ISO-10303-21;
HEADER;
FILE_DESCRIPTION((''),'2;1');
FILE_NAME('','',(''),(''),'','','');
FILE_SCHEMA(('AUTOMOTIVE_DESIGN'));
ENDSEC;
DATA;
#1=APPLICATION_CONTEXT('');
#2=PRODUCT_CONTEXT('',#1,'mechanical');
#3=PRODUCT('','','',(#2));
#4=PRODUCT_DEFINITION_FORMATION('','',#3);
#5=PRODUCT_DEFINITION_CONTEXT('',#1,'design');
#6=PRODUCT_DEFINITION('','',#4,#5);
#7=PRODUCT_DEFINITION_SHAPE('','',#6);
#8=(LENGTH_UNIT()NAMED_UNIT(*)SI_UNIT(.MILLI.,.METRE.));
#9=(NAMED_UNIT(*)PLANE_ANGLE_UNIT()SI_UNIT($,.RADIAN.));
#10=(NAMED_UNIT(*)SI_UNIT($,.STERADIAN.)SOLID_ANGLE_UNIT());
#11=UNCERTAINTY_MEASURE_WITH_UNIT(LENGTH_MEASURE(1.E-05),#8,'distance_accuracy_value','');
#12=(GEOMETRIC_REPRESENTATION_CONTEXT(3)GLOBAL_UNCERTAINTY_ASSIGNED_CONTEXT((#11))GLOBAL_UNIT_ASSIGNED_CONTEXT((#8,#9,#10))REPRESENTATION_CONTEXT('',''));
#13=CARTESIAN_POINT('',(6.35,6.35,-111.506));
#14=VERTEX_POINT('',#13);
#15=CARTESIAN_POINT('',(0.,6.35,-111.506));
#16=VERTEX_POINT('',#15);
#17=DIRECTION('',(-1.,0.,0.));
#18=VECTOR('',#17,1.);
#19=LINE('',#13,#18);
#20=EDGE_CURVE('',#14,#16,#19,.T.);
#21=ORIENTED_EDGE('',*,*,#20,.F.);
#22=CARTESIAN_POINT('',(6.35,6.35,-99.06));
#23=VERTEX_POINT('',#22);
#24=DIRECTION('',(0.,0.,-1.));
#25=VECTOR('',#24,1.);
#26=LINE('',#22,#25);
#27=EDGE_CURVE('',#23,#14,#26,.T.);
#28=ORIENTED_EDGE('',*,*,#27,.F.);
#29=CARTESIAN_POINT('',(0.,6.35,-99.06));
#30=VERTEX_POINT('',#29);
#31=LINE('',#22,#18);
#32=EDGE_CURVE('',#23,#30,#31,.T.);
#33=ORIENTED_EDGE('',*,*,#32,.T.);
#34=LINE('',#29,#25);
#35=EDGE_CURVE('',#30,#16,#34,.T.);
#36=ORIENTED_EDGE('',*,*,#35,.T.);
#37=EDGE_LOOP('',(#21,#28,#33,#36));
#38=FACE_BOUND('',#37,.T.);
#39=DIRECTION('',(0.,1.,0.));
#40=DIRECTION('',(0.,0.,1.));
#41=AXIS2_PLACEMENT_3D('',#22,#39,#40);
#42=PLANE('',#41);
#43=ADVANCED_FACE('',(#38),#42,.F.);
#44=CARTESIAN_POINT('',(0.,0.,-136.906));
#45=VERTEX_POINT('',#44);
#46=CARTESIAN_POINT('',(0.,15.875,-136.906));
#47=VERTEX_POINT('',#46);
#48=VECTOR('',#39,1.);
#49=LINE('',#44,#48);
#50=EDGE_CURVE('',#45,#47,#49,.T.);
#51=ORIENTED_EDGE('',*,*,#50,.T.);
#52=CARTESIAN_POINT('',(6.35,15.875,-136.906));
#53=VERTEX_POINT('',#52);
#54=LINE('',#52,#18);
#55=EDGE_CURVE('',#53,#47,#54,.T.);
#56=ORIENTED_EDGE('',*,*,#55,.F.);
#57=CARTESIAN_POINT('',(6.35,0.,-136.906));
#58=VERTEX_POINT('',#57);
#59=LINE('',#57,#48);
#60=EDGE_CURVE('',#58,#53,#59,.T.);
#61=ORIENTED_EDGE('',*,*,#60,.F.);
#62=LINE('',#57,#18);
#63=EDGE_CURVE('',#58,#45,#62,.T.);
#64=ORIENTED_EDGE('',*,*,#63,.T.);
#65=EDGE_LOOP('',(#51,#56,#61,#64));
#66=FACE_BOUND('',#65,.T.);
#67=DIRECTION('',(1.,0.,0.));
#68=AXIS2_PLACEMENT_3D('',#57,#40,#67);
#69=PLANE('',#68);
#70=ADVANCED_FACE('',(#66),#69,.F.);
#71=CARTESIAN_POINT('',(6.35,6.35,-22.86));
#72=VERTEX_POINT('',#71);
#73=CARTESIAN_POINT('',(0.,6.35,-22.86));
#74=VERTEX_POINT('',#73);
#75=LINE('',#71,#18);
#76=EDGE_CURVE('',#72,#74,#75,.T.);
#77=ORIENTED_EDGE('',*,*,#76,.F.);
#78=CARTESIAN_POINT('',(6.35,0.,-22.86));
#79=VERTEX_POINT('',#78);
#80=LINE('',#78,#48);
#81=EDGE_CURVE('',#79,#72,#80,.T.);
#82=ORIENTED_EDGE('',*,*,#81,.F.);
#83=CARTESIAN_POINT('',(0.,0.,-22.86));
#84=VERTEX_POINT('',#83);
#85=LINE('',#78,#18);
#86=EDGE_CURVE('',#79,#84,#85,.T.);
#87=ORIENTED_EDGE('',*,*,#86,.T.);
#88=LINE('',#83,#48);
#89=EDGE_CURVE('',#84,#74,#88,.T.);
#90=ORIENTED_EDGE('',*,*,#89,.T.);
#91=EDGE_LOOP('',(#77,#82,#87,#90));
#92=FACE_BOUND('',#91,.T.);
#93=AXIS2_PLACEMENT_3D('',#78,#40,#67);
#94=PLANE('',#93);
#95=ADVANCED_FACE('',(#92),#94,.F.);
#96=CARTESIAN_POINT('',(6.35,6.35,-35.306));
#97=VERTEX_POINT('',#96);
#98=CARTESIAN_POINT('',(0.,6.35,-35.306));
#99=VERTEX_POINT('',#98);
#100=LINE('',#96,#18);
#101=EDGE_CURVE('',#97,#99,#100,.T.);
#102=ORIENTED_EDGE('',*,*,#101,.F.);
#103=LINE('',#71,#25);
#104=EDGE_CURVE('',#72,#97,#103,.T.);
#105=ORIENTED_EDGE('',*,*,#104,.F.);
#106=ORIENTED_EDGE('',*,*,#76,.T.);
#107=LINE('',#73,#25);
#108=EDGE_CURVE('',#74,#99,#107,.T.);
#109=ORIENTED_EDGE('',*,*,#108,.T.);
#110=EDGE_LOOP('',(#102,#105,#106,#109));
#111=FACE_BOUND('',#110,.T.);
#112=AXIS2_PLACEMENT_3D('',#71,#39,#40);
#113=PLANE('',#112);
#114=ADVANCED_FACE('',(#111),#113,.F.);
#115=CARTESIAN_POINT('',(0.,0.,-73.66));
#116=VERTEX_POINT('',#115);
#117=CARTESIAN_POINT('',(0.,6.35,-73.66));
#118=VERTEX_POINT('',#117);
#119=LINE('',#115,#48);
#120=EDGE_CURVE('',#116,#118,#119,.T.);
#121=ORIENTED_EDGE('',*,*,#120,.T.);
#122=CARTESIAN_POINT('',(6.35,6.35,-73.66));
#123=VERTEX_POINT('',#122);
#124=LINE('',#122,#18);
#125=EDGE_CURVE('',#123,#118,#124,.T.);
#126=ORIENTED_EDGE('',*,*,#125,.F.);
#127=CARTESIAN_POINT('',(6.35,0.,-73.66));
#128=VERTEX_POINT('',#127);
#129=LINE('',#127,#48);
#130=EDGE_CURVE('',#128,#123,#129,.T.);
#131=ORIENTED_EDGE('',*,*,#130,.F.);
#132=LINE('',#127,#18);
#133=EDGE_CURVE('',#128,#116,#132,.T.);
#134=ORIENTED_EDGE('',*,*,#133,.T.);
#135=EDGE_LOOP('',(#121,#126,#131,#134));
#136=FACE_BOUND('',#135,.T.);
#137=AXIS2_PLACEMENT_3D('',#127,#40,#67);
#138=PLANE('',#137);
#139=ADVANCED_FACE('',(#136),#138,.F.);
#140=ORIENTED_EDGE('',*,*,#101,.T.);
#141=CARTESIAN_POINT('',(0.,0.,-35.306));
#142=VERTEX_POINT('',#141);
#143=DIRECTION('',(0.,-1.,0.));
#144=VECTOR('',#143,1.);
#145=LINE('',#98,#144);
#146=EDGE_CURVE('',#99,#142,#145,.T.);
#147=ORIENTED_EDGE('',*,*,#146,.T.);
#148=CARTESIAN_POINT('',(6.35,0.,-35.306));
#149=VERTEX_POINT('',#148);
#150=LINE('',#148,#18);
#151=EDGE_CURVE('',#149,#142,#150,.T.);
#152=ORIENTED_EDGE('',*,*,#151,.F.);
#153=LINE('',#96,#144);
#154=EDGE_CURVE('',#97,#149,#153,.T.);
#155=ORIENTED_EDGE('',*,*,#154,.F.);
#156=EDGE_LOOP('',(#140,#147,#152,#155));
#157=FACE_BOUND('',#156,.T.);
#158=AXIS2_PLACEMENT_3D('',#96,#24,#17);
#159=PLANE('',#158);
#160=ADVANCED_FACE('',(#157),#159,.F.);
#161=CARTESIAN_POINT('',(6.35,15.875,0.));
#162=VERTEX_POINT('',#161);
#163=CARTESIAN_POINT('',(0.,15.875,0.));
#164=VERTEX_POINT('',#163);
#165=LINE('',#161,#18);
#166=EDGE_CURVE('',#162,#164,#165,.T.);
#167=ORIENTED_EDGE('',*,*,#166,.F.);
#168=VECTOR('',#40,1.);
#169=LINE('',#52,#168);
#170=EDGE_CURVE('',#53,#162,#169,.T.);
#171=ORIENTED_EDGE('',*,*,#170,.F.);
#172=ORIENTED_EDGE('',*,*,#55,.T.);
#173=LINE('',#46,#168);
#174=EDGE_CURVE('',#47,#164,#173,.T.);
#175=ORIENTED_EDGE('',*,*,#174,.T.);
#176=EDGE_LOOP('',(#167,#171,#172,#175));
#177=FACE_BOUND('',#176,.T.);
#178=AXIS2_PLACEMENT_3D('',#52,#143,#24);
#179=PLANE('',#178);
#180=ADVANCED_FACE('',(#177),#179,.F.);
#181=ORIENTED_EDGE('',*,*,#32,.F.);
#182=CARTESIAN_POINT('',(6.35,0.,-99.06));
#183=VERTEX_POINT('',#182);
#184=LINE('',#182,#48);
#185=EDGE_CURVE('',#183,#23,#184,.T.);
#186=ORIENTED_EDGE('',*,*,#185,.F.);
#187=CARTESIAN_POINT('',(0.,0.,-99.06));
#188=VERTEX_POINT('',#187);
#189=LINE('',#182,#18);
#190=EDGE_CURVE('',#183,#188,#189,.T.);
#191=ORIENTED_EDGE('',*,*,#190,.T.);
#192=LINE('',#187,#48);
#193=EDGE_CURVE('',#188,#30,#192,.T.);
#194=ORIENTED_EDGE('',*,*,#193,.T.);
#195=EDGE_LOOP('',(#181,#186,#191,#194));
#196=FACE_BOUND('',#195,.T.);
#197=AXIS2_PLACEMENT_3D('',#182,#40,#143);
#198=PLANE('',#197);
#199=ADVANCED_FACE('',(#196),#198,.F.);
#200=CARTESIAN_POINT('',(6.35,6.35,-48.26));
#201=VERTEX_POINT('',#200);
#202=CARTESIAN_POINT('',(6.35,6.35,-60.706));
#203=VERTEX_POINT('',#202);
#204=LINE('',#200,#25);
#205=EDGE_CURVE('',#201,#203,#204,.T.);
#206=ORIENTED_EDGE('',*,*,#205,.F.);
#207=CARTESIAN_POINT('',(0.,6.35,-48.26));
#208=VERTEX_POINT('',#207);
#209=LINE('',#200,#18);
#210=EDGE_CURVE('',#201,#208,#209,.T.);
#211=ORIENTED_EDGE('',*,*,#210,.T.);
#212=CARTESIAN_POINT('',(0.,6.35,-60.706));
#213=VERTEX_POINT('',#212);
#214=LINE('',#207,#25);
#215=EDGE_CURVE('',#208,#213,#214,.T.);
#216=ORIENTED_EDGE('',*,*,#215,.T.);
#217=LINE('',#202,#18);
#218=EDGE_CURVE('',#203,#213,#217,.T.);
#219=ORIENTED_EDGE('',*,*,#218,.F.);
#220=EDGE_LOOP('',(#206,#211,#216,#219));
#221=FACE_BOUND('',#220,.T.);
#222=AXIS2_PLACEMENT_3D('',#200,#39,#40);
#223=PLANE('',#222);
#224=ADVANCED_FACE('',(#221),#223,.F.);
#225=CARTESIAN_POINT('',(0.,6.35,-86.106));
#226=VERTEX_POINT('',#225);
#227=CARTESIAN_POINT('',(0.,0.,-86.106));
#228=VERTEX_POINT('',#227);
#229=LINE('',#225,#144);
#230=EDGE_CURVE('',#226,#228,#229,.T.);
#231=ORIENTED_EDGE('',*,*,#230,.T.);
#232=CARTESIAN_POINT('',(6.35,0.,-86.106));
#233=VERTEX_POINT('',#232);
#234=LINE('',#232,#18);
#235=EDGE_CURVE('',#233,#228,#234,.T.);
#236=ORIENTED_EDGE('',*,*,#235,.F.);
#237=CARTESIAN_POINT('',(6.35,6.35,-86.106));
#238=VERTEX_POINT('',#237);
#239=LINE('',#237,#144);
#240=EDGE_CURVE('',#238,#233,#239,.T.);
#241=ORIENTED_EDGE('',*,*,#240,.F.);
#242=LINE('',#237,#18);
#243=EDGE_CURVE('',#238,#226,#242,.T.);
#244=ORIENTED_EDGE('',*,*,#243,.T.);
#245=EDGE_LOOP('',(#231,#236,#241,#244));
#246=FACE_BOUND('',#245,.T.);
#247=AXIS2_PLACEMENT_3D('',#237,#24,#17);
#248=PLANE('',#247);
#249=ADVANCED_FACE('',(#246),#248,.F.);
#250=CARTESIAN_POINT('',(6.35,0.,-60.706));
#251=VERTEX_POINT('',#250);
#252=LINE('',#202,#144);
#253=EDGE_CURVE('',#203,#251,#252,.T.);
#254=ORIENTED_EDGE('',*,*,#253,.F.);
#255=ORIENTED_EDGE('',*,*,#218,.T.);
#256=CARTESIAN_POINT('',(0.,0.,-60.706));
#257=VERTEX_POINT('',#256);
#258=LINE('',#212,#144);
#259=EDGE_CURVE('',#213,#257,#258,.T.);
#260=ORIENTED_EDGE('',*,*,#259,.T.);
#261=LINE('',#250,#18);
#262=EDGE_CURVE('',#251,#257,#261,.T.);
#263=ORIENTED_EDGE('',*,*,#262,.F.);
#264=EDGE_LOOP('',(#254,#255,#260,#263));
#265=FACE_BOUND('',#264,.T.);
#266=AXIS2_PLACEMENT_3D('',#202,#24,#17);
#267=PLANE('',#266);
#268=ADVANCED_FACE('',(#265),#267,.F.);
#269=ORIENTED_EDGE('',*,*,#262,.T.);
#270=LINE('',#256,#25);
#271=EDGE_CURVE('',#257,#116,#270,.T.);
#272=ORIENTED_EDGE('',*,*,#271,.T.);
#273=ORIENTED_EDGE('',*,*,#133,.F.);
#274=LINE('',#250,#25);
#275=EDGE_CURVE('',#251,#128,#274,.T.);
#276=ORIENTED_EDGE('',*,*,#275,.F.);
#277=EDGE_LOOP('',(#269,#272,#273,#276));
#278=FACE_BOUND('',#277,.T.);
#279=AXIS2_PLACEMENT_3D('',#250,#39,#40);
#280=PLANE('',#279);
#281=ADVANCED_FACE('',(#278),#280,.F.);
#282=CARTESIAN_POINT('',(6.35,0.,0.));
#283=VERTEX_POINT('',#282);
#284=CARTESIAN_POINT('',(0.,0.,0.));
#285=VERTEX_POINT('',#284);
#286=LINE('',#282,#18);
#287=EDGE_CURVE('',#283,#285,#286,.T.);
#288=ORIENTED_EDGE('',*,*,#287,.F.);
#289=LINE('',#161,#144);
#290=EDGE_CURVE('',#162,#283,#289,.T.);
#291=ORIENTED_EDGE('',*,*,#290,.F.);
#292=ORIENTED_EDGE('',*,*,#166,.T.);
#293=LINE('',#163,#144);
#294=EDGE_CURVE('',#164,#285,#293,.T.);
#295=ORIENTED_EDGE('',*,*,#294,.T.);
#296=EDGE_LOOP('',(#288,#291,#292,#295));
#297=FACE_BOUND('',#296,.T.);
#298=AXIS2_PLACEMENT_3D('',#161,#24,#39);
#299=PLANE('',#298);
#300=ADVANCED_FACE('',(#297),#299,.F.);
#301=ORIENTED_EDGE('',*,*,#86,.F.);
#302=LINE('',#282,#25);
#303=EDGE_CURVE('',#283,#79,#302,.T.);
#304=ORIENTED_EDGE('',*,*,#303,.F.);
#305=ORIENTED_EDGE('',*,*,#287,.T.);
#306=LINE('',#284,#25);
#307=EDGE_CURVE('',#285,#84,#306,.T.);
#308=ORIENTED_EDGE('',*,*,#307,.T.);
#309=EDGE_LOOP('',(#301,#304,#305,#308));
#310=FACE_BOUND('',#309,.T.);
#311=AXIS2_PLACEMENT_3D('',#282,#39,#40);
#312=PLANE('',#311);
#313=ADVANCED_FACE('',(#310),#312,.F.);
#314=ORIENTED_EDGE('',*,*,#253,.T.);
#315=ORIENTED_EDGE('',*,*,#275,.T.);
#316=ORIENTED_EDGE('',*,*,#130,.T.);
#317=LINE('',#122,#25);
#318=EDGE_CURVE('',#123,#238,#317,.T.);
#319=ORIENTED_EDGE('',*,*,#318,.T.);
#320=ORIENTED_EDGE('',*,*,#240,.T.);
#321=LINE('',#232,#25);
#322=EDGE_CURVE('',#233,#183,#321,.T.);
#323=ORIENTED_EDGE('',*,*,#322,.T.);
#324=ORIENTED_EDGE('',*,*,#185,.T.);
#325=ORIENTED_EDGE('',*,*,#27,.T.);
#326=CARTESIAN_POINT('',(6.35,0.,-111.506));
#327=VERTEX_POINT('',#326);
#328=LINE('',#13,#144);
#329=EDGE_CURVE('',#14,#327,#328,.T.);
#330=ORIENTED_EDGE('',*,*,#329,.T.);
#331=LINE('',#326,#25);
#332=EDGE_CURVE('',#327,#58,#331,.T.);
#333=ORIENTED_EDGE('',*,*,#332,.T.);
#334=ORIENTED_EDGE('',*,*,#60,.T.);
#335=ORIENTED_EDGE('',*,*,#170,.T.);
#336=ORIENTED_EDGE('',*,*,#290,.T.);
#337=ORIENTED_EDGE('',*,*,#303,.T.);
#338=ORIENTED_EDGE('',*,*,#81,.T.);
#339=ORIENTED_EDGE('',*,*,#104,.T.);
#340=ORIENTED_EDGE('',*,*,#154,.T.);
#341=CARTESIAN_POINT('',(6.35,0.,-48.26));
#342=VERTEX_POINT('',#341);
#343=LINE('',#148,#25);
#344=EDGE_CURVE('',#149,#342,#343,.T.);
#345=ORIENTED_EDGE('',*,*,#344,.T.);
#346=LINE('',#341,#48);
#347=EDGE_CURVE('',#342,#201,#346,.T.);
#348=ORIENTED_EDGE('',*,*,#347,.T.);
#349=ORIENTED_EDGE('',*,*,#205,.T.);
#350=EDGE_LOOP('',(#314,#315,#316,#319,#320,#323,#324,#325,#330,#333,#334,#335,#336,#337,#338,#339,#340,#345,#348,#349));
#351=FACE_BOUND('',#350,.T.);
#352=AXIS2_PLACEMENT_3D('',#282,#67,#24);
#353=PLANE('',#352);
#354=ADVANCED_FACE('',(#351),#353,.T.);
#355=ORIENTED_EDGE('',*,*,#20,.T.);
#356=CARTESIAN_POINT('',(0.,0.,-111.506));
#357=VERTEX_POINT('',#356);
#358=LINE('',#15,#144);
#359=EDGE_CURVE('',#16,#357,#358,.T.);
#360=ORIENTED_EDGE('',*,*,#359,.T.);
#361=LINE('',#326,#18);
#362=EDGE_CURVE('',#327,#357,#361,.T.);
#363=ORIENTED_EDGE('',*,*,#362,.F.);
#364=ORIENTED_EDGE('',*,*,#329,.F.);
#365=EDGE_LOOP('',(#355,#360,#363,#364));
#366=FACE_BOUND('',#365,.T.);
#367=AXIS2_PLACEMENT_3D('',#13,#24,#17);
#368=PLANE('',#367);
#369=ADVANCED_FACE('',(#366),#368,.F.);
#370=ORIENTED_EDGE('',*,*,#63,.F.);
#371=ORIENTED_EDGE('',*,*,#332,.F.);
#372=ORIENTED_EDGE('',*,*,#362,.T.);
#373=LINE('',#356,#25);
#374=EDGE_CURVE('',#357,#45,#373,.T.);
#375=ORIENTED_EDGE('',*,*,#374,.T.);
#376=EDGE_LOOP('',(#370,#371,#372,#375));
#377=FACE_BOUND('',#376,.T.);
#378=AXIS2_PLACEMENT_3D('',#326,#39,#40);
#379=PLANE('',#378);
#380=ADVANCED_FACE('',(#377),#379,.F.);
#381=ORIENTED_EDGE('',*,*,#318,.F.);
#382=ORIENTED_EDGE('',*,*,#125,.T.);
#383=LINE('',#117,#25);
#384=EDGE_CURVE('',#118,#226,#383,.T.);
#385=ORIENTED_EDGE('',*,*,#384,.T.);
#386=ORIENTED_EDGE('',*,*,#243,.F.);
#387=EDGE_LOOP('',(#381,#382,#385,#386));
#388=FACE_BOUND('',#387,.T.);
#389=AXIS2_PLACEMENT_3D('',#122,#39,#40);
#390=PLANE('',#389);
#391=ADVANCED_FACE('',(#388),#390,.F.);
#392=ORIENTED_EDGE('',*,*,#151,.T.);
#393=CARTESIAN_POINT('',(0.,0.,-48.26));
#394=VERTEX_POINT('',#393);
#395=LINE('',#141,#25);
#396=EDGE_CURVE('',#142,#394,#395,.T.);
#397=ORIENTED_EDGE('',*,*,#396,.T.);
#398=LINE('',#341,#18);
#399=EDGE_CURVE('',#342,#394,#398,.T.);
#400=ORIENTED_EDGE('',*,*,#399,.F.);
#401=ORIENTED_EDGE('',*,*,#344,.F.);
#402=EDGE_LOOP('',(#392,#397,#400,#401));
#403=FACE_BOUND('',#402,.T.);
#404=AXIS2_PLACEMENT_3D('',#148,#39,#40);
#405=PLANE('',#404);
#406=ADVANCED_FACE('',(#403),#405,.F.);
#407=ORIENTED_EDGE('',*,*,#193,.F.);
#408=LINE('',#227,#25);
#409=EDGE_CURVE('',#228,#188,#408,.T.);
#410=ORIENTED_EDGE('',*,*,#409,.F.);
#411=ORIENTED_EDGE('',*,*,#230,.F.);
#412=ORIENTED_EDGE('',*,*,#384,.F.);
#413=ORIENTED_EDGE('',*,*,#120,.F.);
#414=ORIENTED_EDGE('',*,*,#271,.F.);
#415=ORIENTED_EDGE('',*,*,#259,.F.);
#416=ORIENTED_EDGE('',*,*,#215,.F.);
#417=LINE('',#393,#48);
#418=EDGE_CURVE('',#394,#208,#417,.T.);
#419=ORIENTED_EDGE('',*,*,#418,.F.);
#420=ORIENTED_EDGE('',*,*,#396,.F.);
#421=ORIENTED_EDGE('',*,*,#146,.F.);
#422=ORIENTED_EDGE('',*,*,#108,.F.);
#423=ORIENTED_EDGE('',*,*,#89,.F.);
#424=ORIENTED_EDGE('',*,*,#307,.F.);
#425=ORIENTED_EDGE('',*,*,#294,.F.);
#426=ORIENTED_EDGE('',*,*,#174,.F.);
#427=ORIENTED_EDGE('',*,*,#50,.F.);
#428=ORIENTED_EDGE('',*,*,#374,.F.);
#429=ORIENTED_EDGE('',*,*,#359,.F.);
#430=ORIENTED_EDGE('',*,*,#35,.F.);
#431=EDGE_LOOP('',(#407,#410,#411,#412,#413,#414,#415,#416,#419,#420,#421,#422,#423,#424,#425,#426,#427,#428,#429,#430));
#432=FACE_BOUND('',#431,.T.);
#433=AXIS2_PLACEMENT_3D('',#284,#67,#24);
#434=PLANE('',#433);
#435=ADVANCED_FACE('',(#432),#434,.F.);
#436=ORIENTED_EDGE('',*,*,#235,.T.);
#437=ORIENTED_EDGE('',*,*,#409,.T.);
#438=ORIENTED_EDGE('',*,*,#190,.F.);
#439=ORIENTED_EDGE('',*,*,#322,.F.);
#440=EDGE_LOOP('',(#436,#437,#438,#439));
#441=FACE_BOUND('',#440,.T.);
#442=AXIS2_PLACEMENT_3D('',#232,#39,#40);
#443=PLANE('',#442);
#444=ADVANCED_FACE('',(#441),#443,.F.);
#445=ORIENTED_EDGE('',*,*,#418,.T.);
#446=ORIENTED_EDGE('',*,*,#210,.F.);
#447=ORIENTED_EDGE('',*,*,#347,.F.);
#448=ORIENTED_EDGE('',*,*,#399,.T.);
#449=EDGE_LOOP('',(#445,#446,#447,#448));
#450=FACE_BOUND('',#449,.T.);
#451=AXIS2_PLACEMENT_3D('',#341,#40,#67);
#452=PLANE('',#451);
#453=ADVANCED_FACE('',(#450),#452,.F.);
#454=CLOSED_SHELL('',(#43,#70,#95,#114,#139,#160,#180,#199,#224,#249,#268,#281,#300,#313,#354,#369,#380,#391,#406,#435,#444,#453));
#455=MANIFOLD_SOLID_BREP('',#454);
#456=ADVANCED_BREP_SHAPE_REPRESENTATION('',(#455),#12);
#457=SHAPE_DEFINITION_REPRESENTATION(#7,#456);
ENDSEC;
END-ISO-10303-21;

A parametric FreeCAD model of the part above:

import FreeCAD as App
import Part
import Sketcher

V = App.Vector
Q = App.Units.Quantity

doc = App.newDocument("Part")
body = doc.addObject("PartDesign::Body", "Body")

sketch1 = body.newObject("Sketcher::SketchObject", "Sketch")
sketch1.AttachmentSupport = (doc.getObject("YZ_Plane"), [""])
sketch1.MapMode = "FlatFace"
sketch1.addGeometry(Part.LineSegment(V(0, 0, 0), V(0, -23, 0)), False)
sketch1.addGeometry(Part.LineSegment(V(0, -23, 0), V(6, -23, 0)), False)
sketch1.addGeometry(Part.LineSegment(V(6, -23, 0), V(6, -35, 0)), False)
sketch1.addGeometry(Part.LineSegment(V(6, -35, 0), V(0, -35, 0)), False)
sketch1.addGeometry(Part.LineSegment(V(0, -35, 0), V(0, -48, 0)), False)
sketch1.addGeometry(Part.LineSegment(V(0, -48, 0), V(6, -48, 0)), False)
sketch1.addGeometry(Part.LineSegment(V(6, -48, 0), V(6, -61, 0)), False)
sketch1.addGeometry(Part.LineSegment(V(6, -61, 0), V(0, -61, 0)), False)
sketch1.addGeometry(Part.LineSegment(V(0, -61, 0), V(0, -74, 0)), False)
sketch1.addGeometry(Part.LineSegment(V(0, -74, 0), V(6, -74, 0)), False)
sketch1.addGeometry(Part.LineSegment(V(6, -74, 0), V(6, -86, 0)), False)
sketch1.addGeometry(Part.LineSegment(V(6, -86, 0), V(0, -86, 0)), False)
sketch1.addGeometry(Part.LineSegment(V(0, -86, 0), V(0, -99, 0)), False)
sketch1.addGeometry(Part.LineSegment(V(0, -99, 0), V(6, -99, 0)), False)
sketch1.addGeometry(Part.LineSegment(V(6, -99, 0), V(6, -112, 0)), False)
sketch1.addGeometry(Part.LineSegment(V(6, -112, 0), V(0, -112, 0)), False)
sketch1.addGeometry(Part.LineSegment(V(0, -112, 0), V(0, -137, 0)), False)
sketch1.addGeometry(Part.LineSegment(V(0, -137, 0), V(16, -137, 0)), False)
sketch1.addGeometry(Part.LineSegment(V(16, -137, 0), V(16, 0, 0)), False)
sketch1.addGeometry(Part.LineSegment(V(16, 0, 0), V(0, 0, 0)), False)
sketch1.addConstraint(Sketcher.Constraint("Coincident", 0, 2, 1, 1))
sketch1.addConstraint(Sketcher.Constraint("Coincident", 1, 2, 2, 1))
sketch1.addConstraint(Sketcher.Constraint("Coincident", 2, 2, 3, 1))
sketch1.addConstraint(Sketcher.Constraint("Coincident", 3, 2, 4, 1))
sketch1.addConstraint(Sketcher.Constraint("Coincident", 4, 2, 5, 1))
sketch1.addConstraint(Sketcher.Constraint("Coincident", 5, 2, 6, 1))
sketch1.addConstraint(Sketcher.Constraint("Coincident", 6, 2, 7, 1))
sketch1.addConstraint(Sketcher.Constraint("Coincident", 7, 2, 8, 1))
sketch1.addConstraint(Sketcher.Constraint("Coincident", 8, 2, 9, 1))
sketch1.addConstraint(Sketcher.Constraint("Coincident", 9, 2, 10, 1))
sketch1.addConstraint(Sketcher.Constraint("Coincident", 10, 2, 11, 1))
sketch1.addConstraint(Sketcher.Constraint("Coincident", 11, 2, 12, 1))
sketch1.addConstraint(Sketcher.Constraint("Coincident", 12, 2, 13, 1))
sketch1.addConstraint(Sketcher.Constraint("Coincident", 13, 2, 14, 1))
sketch1.addConstraint(Sketcher.Constraint("Coincident", 14, 2, 15, 1))
sketch1.addConstraint(Sketcher.Constraint("Coincident", 15, 2, 16, 1))
sketch1.addConstraint(Sketcher.Constraint("Coincident", 16, 2, 17, 1))
sketch1.addConstraint(Sketcher.Constraint("Coincident", 17, 2, 18, 1))
sketch1.addConstraint(Sketcher.Constraint("Coincident", 18, 2, 19, 1))
sketch1.addConstraint(Sketcher.Constraint("Coincident", 19, 2, 0, 1))
sketch1.addConstraint(Sketcher.Constraint("Vertical", 0))
sketch1.addConstraint(Sketcher.Constraint("Horizontal", 1))
sketch1.addConstraint(Sketcher.Constraint("Vertical", 2))
sketch1.addConstraint(Sketcher.Constraint("Horizontal", 3))
sketch1.addConstraint(Sketcher.Constraint("Vertical", 4))
sketch1.addConstraint(Sketcher.Constraint("Horizontal", 5))
sketch1.addConstraint(Sketcher.Constraint("Vertical", 6))
sketch1.addConstraint(Sketcher.Constraint("Horizontal", 7))
sketch1.addConstraint(Sketcher.Constraint("Vertical", 8))
sketch1.addConstraint(Sketcher.Constraint("Horizontal", 9))
sketch1.addConstraint(Sketcher.Constraint("Vertical", 10))
sketch1.addConstraint(Sketcher.Constraint("Horizontal", 11))
sketch1.addConstraint(Sketcher.Constraint("Vertical", 12))
sketch1.addConstraint(Sketcher.Constraint("Horizontal", 13))
sketch1.addConstraint(Sketcher.Constraint("Vertical", 14))
sketch1.addConstraint(Sketcher.Constraint("Horizontal", 15))
sketch1.addConstraint(Sketcher.Constraint("Vertical", 16))
sketch1.addConstraint(Sketcher.Constraint("Horizontal", 17))
sketch1.addConstraint(Sketcher.Constraint("Vertical", 18))
sketch1.addConstraint(Sketcher.Constraint("Horizontal", 19))
sketch1.addConstraint(Sketcher.Constraint("Coincident", 19, 2, -1, 1))
sketch1.addConstraint(Sketcher.Constraint("PointOnObject", 3, 2, -2))
sketch1.addConstraint(Sketcher.Constraint("PointOnObject", 7, 2, -2))
sketch1.addConstraint(Sketcher.Constraint("PointOnObject", 11, 2, -2))
sketch1.addConstraint(Sketcher.Constraint("PointOnObject", 15, 2, -2))
sketch1.addConstraint(Sketcher.Constraint("Vertical", 2, 2, 5, 2))
sketch1.addConstraint(Sketcher.Constraint("Vertical", 6, 2, 9, 2))
sketch1.addConstraint(Sketcher.Constraint("Vertical", 10, 2, 13, 2))
sketch1.addConstraint(Sketcher.Constraint("Equal", 2, 6))
sketch1.addConstraint(Sketcher.Constraint("Equal", 4, 8))
sketch1.addConstraint(Sketcher.Constraint("Equal", 6, 10))
sketch1.addConstraint(Sketcher.Constraint("Equal", 8, 12))
sketch1.addConstraint(Sketcher.Constraint("Equal", 10, 14))
sketch1.addConstraint(Sketcher.Constraint("DistanceY", 16, 2, 16, 1, Q("1 in")))
sketch1.addConstraint(Sketcher.Constraint("DistanceY", 0, 2, 0, 1, Q("0.9 in")))
sketch1.addConstraint(Sketcher.Constraint("DistanceY", 4, 2, 0, 2, Q("1 in")))
sketch1.addConstraint(Sketcher.Constraint("DistanceX", 1, 1, 1, 2, Q("0.25 in")))
sketch1.addConstraint(Sketcher.Constraint("DistanceY", 2, 2, 2, 1, Q("0.49 in")))
sketch1.addConstraint(Sketcher.Constraint("DistanceX", 17, 1, 17, 2, Q("0.625 in")))
pad1 = body.newObject("PartDesign::Pad", "Pad")
pad1.Profile = sketch1
pad1.Length = Q("0.25 in")

doc.recompute()
